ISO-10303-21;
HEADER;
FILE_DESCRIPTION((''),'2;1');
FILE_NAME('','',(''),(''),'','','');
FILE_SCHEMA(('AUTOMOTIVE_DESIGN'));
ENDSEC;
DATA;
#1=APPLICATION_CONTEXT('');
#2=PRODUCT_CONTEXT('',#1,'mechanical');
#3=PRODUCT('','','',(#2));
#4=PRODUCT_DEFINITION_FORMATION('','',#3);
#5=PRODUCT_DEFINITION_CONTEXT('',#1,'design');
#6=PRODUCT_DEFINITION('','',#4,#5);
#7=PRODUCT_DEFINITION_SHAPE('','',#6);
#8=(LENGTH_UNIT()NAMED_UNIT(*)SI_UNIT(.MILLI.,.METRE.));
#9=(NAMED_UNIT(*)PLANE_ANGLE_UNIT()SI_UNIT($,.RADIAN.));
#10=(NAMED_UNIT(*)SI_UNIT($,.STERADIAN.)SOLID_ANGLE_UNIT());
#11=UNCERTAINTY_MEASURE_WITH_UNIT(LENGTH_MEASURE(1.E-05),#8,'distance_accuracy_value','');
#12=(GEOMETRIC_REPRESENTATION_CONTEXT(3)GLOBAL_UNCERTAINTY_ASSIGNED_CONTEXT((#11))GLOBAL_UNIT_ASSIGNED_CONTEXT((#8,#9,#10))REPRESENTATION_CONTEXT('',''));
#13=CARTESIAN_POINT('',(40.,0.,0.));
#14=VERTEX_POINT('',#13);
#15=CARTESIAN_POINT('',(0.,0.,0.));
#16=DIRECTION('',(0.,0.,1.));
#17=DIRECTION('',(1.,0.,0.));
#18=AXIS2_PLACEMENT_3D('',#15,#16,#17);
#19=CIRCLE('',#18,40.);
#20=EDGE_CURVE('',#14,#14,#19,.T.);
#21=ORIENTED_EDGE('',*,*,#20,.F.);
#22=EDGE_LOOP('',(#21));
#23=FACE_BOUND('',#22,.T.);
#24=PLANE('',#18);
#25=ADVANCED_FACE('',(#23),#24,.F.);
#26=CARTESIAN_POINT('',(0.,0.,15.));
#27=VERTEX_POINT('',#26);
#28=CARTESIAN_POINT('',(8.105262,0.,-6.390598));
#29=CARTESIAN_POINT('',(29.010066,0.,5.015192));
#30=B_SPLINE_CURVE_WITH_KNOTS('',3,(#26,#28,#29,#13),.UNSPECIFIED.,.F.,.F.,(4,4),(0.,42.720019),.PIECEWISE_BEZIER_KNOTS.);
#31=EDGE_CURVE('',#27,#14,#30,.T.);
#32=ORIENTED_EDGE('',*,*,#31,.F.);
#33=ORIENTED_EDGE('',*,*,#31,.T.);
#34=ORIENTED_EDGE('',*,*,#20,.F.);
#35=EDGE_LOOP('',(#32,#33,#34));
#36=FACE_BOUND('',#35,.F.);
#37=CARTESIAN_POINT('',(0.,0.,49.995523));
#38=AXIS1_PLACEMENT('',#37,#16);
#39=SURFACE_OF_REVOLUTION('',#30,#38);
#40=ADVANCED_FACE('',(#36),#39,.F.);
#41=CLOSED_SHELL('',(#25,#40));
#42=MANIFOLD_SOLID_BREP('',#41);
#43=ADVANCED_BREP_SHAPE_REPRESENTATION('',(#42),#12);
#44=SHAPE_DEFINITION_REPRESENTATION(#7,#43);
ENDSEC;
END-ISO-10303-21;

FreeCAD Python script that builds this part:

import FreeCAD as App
import Part
import Sketcher

V = App.Vector

doc = App.newDocument("Part")
body = doc.addObject("PartDesign::Body", "Body")

sketch1 = body.newObject("Sketcher::SketchObject", "Sketch")
sketch1.AttachmentSupport = (doc.getObject("XZ_Plane"), [""])
sketch1.MapMode = "FlatFace"
sketch1.addGeometry([
    Part.BSplineCurve([V(0, 15, 0), V(8.105262, -6.390598, 0), V(29.010066, 5.015192, 0), V(40, 0, 0)], [4, 4], [0, 42.720019], False, 3, [1, 1, 1, 1], False),
    Part.LineSegment(V(0, 15, 0), V(0, 0, 0)),
    Part.LineSegment(V(0, 0, 0), V(40, 0, 0)),
], False)
sketch1.addConstraint([
    Sketcher.Constraint("Block", 0),
    Sketcher.Constraint("Coincident", 0, 1, 1, 1),
    Sketcher.Constraint("Coincident", 1, 2, 2, 1),
    Sketcher.Constraint("Coincident", 2, 2, 0, 2),
    Sketcher.Constraint("Vertical", 1),
    Sketcher.Constraint("Horizontal", 2),
])
revolution = body.newObject("PartDesign::Revolution", "Revolution")
revolution.Profile = sketch1
revolution.ReferenceAxis = (sketch1, ["V_Axis"])
revolution.Angle = 360

doc.recompute()
